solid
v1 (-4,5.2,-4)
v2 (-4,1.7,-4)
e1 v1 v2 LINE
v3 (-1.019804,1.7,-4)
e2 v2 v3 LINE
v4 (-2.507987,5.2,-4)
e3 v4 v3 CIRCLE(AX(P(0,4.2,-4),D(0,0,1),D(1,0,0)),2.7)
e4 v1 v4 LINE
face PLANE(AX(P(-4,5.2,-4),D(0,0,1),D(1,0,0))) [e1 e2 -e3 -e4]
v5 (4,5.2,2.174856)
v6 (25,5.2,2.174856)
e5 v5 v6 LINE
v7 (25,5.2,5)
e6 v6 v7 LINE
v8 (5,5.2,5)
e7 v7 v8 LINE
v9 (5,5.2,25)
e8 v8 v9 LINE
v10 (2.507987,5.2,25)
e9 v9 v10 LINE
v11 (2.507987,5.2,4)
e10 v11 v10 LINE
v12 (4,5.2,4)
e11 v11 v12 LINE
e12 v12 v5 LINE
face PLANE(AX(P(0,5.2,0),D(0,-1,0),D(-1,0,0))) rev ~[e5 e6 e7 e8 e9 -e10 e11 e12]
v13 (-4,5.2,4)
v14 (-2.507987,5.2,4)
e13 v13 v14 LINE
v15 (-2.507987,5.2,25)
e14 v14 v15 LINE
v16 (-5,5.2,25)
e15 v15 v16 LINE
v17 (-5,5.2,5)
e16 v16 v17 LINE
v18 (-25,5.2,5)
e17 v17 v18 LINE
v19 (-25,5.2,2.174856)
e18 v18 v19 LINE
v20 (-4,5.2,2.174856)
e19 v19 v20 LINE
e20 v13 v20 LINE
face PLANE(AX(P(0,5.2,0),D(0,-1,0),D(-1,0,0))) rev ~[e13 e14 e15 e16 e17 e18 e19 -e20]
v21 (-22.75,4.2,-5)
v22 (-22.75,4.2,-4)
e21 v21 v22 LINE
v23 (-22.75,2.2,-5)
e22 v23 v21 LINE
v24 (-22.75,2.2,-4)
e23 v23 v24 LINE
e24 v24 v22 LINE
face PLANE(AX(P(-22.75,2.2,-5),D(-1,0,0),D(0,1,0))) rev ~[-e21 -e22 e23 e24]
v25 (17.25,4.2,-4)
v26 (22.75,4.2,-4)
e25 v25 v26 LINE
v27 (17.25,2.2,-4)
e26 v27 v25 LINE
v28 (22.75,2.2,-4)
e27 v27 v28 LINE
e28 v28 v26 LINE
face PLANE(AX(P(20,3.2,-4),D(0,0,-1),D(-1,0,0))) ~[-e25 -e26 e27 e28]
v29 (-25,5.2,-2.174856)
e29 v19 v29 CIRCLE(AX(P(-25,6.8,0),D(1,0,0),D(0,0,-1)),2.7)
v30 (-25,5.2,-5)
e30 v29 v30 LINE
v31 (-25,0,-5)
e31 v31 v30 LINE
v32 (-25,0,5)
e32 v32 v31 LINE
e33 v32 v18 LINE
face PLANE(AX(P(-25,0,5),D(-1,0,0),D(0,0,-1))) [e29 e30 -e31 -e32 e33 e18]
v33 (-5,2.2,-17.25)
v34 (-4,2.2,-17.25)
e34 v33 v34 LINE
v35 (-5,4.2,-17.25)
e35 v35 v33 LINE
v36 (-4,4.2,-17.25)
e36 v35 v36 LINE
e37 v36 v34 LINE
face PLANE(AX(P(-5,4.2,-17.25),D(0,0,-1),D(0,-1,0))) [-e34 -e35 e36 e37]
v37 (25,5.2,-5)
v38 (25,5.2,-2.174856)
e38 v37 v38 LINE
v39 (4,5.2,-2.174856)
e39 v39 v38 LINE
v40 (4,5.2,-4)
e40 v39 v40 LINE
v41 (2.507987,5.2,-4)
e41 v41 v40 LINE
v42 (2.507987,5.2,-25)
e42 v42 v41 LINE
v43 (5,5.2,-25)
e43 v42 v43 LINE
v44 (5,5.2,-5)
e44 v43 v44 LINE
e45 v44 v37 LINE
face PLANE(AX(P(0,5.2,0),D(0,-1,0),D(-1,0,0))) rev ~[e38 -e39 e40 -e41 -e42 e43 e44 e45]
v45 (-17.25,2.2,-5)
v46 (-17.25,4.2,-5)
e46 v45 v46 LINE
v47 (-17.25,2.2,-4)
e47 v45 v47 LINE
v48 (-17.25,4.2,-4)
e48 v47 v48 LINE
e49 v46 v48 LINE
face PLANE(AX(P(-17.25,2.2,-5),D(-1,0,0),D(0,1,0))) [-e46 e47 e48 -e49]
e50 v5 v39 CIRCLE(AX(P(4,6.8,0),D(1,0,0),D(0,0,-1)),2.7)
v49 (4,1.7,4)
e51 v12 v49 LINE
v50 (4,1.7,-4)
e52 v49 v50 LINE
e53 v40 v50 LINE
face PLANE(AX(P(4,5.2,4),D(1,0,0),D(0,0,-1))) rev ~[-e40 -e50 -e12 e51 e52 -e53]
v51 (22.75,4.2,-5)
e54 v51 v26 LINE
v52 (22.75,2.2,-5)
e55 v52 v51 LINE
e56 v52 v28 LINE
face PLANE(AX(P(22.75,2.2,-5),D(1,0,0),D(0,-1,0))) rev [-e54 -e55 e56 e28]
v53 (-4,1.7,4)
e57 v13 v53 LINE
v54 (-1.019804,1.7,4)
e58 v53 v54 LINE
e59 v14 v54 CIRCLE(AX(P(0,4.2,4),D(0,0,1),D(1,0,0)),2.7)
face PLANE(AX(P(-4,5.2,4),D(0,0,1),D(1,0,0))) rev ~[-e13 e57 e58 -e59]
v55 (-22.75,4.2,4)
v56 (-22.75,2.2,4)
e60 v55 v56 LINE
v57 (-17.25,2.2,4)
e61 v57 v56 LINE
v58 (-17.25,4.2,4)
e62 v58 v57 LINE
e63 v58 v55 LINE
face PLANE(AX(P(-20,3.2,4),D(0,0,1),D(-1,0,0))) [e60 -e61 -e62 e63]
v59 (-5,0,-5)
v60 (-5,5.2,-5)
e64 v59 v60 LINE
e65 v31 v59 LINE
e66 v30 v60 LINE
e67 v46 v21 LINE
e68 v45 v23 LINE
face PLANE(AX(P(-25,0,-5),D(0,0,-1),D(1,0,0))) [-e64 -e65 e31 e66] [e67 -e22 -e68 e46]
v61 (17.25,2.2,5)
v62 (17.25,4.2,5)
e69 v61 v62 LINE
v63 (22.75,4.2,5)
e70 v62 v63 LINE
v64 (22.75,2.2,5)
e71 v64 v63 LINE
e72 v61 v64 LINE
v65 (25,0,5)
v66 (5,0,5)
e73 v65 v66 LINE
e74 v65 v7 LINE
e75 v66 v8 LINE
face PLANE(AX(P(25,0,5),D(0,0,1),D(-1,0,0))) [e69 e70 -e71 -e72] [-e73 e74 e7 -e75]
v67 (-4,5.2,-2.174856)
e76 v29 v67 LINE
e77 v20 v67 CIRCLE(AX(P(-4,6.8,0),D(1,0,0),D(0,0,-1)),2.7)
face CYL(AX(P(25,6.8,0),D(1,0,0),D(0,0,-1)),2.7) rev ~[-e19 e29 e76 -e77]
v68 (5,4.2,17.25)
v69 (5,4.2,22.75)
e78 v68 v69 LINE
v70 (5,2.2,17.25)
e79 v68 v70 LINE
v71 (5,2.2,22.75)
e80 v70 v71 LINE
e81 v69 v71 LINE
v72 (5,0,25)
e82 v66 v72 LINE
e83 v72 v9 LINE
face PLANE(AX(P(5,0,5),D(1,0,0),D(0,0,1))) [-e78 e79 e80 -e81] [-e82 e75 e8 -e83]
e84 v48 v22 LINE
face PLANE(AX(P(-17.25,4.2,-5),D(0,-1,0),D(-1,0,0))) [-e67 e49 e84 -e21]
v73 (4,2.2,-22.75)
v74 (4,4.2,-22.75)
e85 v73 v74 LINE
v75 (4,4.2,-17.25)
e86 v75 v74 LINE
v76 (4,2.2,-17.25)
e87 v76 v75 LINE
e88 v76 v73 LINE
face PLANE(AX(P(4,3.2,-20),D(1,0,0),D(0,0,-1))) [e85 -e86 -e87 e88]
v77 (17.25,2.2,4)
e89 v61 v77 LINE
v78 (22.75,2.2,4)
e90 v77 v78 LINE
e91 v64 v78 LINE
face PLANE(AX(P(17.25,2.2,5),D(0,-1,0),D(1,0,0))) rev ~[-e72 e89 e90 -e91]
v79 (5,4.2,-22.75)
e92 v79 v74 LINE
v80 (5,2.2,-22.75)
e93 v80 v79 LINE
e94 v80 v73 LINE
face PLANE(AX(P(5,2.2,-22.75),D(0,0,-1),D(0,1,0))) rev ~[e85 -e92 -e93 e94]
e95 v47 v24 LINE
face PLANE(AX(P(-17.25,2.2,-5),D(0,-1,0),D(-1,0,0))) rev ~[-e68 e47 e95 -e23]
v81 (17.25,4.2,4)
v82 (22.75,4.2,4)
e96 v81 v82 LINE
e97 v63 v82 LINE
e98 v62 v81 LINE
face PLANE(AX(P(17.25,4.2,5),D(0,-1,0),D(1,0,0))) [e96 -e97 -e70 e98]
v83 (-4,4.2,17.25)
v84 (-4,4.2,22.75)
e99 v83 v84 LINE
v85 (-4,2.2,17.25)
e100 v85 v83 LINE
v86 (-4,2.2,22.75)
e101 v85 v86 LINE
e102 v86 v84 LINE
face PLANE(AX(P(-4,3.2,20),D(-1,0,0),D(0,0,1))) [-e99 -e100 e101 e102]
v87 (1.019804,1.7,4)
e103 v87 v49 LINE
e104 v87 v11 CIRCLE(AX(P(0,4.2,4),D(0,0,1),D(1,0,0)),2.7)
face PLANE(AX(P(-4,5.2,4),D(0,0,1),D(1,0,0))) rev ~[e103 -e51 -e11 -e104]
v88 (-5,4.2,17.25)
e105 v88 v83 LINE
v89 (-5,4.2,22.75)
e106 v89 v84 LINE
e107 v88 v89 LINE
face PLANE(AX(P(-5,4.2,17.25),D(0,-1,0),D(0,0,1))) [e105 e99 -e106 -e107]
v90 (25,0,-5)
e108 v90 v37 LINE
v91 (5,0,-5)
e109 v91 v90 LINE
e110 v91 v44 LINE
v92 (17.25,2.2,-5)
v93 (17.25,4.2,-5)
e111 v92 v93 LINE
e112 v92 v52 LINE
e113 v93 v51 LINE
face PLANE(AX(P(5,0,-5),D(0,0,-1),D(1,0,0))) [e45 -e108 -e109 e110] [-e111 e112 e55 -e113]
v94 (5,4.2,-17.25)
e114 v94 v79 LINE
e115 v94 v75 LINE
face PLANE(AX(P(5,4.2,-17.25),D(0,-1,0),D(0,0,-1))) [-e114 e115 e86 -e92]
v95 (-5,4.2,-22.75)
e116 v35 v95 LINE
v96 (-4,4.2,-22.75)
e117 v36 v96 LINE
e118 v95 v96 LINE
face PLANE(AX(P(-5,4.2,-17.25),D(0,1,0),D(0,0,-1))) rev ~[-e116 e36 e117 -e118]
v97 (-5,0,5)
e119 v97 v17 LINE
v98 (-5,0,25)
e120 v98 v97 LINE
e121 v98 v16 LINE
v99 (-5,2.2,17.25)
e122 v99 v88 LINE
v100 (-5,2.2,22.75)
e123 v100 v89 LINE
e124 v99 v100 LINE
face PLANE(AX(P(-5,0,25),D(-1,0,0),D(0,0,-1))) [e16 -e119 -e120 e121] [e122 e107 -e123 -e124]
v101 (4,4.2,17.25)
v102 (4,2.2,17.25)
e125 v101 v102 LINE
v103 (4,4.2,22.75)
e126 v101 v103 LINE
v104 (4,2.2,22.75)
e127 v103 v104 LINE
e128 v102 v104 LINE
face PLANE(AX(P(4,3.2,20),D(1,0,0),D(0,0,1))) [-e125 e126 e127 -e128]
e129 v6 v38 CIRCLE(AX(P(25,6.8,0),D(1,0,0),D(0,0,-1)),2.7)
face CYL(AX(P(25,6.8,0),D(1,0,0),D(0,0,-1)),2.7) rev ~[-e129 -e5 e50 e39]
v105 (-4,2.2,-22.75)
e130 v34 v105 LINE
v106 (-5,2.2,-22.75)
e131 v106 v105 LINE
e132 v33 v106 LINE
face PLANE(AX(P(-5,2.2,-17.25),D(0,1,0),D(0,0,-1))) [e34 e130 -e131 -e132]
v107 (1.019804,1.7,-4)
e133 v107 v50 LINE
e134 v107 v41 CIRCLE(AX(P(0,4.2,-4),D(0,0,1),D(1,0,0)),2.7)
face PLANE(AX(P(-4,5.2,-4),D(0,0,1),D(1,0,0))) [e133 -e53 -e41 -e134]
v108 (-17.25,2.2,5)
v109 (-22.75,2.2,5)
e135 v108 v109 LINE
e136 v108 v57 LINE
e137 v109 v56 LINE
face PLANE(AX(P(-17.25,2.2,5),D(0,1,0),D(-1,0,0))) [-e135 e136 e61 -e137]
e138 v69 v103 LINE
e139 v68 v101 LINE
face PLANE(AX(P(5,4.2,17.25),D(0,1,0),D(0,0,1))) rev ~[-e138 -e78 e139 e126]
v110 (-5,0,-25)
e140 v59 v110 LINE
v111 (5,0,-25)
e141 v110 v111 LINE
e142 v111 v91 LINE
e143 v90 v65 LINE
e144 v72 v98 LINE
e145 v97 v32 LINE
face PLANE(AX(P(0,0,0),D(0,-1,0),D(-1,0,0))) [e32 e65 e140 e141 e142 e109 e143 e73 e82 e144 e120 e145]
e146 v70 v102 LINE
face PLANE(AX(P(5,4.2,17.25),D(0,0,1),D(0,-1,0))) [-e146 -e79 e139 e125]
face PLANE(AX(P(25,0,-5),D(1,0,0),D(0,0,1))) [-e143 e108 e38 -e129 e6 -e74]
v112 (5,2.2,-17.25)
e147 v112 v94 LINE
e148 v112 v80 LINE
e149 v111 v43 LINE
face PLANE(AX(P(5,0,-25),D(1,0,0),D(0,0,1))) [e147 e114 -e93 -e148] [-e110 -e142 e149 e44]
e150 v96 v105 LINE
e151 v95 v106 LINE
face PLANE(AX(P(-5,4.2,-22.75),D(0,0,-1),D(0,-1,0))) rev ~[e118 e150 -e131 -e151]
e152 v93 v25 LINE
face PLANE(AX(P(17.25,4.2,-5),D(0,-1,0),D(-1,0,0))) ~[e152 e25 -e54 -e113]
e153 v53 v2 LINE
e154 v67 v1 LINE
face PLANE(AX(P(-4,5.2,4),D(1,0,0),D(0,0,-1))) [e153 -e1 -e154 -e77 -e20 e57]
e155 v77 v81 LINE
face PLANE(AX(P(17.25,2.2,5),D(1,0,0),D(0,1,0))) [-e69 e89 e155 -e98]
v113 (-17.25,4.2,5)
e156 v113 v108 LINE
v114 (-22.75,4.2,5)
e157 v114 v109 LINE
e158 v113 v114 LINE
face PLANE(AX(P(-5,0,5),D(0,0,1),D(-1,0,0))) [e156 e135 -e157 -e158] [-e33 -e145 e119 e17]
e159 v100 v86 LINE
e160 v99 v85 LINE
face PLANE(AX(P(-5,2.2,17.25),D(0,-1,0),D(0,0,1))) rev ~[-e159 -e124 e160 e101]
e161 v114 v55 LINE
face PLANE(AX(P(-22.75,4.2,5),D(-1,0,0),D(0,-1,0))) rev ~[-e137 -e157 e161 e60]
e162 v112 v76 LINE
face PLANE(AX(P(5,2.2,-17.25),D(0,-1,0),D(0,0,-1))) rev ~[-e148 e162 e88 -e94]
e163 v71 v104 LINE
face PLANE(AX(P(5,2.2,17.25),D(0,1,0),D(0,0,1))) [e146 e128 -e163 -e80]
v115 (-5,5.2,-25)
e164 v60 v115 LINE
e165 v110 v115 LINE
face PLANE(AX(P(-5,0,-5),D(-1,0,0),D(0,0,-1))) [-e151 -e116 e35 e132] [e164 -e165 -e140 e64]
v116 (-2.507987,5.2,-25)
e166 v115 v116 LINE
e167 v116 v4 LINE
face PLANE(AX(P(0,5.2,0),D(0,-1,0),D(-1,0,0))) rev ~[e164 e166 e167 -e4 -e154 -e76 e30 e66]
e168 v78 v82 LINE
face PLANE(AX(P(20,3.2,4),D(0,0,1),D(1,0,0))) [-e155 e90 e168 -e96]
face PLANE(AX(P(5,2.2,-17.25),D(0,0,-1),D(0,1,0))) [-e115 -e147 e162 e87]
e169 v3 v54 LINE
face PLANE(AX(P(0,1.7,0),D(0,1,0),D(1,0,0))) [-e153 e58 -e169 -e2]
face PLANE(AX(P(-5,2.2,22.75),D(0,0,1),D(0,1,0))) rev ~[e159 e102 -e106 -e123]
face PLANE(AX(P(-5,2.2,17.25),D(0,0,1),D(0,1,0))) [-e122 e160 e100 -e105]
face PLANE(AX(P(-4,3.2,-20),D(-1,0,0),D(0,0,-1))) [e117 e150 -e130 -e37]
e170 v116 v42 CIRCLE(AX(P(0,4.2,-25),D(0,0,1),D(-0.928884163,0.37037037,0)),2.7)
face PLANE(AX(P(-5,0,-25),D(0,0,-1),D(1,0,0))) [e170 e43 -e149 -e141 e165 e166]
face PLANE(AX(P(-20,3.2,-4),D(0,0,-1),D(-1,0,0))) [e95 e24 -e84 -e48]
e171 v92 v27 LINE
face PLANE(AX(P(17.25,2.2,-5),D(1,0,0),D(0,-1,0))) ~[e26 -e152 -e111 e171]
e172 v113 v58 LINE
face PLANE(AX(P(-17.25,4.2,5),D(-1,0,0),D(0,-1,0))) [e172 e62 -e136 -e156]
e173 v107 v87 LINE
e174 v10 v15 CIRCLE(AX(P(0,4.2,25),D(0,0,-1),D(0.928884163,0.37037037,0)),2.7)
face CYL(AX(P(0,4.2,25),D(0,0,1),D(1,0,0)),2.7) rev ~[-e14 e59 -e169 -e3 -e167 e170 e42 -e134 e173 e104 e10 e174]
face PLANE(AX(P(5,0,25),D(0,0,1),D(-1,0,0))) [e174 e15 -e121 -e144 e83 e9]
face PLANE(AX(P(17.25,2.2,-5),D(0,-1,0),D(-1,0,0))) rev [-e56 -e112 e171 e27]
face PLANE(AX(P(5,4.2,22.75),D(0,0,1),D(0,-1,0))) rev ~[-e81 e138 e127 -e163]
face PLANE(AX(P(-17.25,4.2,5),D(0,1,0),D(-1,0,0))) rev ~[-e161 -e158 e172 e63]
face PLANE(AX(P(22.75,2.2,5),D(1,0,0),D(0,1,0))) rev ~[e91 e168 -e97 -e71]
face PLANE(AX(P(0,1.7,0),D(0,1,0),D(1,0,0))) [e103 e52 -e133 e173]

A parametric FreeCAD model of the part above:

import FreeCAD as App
import Part
import Sketcher

V = App.Vector

doc = App.newDocument("Part")
body = doc.addObject("PartDesign::Body", "Body")

# Sketch on XZ plane
sketch1 = body.newObject("Sketcher::SketchObject", "Sketch")
sketch1.AttachmentSupport = (doc.getObject("XZ_Plane"), [""])
sketch1.MapMode = "FlatFace"
sketch1.addGeometry([
    Part.LineSegment(V(25, -5, 0), V(5, -5, 0)),  # 0
    Part.LineSegment(V(5, -5, 0), V(5, -25, 0)),  # 1
    Part.LineSegment(V(5, -25, 0), V(-5, -25, 0)),  # 2
    Part.LineSegment(V(-5, -25, 0), V(-5, -5, 0)),  # 3
    Part.LineSegment(V(-5, -5, 0), V(-25, -5, 0)),  # 4
    Part.LineSegment(V(-25, -5, 0), V(-25, 5, 0)),  # 5
    Part.LineSegment(V(-25, 5, 0), V(-5, 5, 0)),  # 6
    Part.LineSegment(V(-5, 5, 0), V(-5, 25, 0)),  # 7
    Part.LineSegment(V(-5, 25, 0), V(5, 25, 0)),  # 8
    Part.LineSegment(V(5, 25, 0), V(5, 5, 0)),  # 9
    Part.LineSegment(V(5, 5, 0), V(25, 5, 0)),  # 10
    Part.LineSegment(V(25, 5, 0), V(25, -5, 0)),  # 11
], False)
sketch1.addConstraint([
    Sketcher.Constraint("Coincident", 0, 2, 1, 1),
    Sketcher.Constraint("Coincident", 1, 2, 2, 1),
    Sketcher.Constraint("Coincident", 2, 2, 3, 1),
    Sketcher.Constraint("Coincident", 3, 2, 4, 1),
    Sketcher.Constraint("Coincident", 4, 2, 5, 1),
    Sketcher.Constraint("Coincident", 5, 2, 6, 1),
    Sketcher.Constraint("Coincident", 6, 2, 7, 1),
    Sketcher.Constraint("Coincident", 7, 2, 8, 1),
    Sketcher.Constraint("Coincident", 8, 2, 9, 1),
    Sketcher.Constraint("Coincident", 9, 2, 10, 1),
    Sketcher.Constraint("Coincident", 10, 2, 11, 1),
    Sketcher.Constraint("Coincident", 11, 2, 0, 1),
    Sketcher.Constraint("Horizontal", 0),
    Sketcher.Constraint("Vertical", 1),
    Sketcher.Constraint("Horizontal", 2),
    Sketcher.Constraint("Vertical", 3),
    Sketcher.Constraint("Horizontal", 4),
    Sketcher.Constraint("Vertical", 5),
    Sketcher.Constraint("Horizontal", 6),
    Sketcher.Constraint("Vertical", 7),
    Sketcher.Constraint("Horizontal", 8),
    Sketcher.Constraint("Vertical", 9),
    Sketcher.Constraint("Horizontal", 10),
    Sketcher.Constraint("Vertical", 11),
    Sketcher.Constraint("Symmetric", 0, 2, 6, 2, -1, 1),
    Sketcher.Constraint("Symmetric", 2, 2, 8, 2, -1, 1),
    Sketcher.Constraint("Symmetric", 4, 2, 10, 2, -1, 1),
    Sketcher.Constraint("Symmetric", 0, 2, 3, 2, -2),
    Sketcher.Constraint("Equal", 10, 1),
    Sketcher.Constraint("Equal", 8, 5),
    Sketcher.Constraint("DistanceX", 0, 2, 0, 1, 20.0),
    Sketcher.Constraint("DistanceX", 2, 2, 2, 1, 10.0),
])
pad1 = body.newObject("PartDesign::Pad", "Pad")
pad1.Profile = sketch1
pad1.Length = 5.2
pad1.Reversed = True

# Sketch on XY plane
sketch2 = body.newObject("Sketcher::SketchObject", "Sketch001")
sketch2.AttachmentSupport = (doc.getObject("XY_Plane"), [""])
sketch2.MapMode = "FlatFace"
sketch2.AttachmentOffset = App.Placement(V(0, 0, 25), App.Rotation())
sketch2.addGeometry(Part.Circle(V(0, 4.2, 0), V(0, 0, 1), 2.7), False)
sketch2.addConstraint([
    Sketcher.Constraint("PointOnObject", 0, 3, -2),
    Sketcher.Constraint("Diameter", 0, 5.4),
    Sketcher.Constraint("DistanceY", -1, 1, 0, 3, 4.2),
])
pocket1 = body.newObject("PartDesign::Pocket", "Pocket")
pocket1.Profile = sketch2
pocket1.Type = "UpToFirst"

# Sketch on YZ plane
sketch3 = body.newObject("Sketcher::SketchObject", "Sketch002")
sketch3.AttachmentSupport = (doc.getObject("YZ_Plane"), [""])
sketch3.MapMode = "FlatFace"
sketch3.AttachmentOffset = App.Placement(V(0, 0, 25), App.Rotation())
sketch3.addGeometry(Part.Circle(V(6.8, 0, 0), V(0, 0, 1), 2.7), False)
sketch3.addConstraint([
    Sketcher.Constraint("PointOnObject", 0, 3, -1),
    Sketcher.Constraint("Diameter", 0, 5.4),
    Sketcher.Constraint("DistanceX", -1, 1, 0, 3, 6.8),
])
pocket2 = body.newObject("PartDesign::Pocket", "Pocket001")
pocket2.Profile = sketch3
pocket2.Type = "ThroughAll"

# Sketch on XZ plane
sketch4 = body.newObject("Sketcher::SketchObject", "Sketch003")
sketch4.AttachmentSupport = (doc.getObject("XZ_Plane"), [""])
sketch4.MapMode = "FlatFace"
sketch4.AttachmentOffset = App.Placement(V(0, 0, -5.2), App.Rotation())
sketch4.addGeometry([
    Part.LineSegment(V(-4, -4, 0), V(-4, 4, 0)),
    Part.LineSegment(V(-4, 4, 0), V(4, 4, 0)),
    Part.LineSegment(V(4, 4, 0), V(4, -4, 0)),
    Part.LineSegment(V(4, -4, 0), V(-4, -4, 0)),
], False)
sketch4.addConstraint([
    Sketcher.Constraint("Coincident", 0, 2, 1, 1),
    Sketcher.Constraint("Coincident", 1, 2, 2, 1),
    Sketcher.Constraint("Coincident", 2, 2, 3, 1),
    Sketcher.Constraint("Coincident", 3, 2, 0, 1),
    Sketcher.Constraint("Vertical", 0),
    Sketcher.Constraint("Horizontal", 1),
    Sketcher.Constraint("Vertical", 2),
    Sketcher.Constraint("Horizontal", 3),
    Sketcher.Constraint("Symmetric", 0, 2, 2, 2, -1, 1),
    Sketcher.Constraint("Equal", 3, 0),
    Sketcher.Constraint("DistanceX", 1, 1, 1, 2, 8.0),
])
pocket3 = body.newObject("PartDesign::Pocket", "Pocket002")
pocket3.Profile = sketch4
pocket3.Length = 3.5
pocket3.Reversed = True

# Sketch on XY plane
sketch5 = body.newObject("Sketcher::SketchObject", "Sketch004")
sketch5.AttachmentSupport = (doc.getObject("XY_Plane"), [""])
sketch5.MapMode = "FlatFace"
sketch5.AttachmentOffset = App.Placement(V(0, 0, 5), App.Rotation())
sketch5.addGeometry([
    Part.LineSegment(V(17.2, 4.2, 0), V(17.2, 2.2, 0)),
    Part.LineSegment(V(17.2, 2.2, 0), V(22.8, 2.2, 0)),
    Part.LineSegment(V(22.8, 2.2, 0), V(22.8, 4.2, 0)),
    Part.LineSegment(V(22.8, 4.2, 0), V(17.2, 4.2, 0)),
], False)
sketch5.addConstraint([
    Sketcher.Constraint("Coincident", 0, 2, 1, 1),
    Sketcher.Constraint("Coincident", 1, 2, 2, 1),
    Sketcher.Constraint("Coincident", 2, 2, 3, 1),
    Sketcher.Constraint("Coincident", 3, 2, 0, 1),
    Sketcher.Constraint("Vertical", 0),
    Sketcher.Constraint("Horizontal", 1),
    Sketcher.Constraint("Vertical", 2),
    Sketcher.Constraint("Horizontal", 3),
    Sketcher.Constraint("DistanceY", 0, 2, 0, 1, 2.0),
    Sketcher.Constraint("DistanceX", 1, 1, 1, 2, 5.5),
    Sketcher.Constraint("DistanceY", -1, 1, 0, 2, 2.2),
    Sketcher.Constraint("DistanceX", -1, 1, 0, 2, 17.25),
])
pocket4 = body.newObject("PartDesign::Pocket", "Pocket003")
pocket4.Profile = sketch5
pocket4.Length = 1
doc.recompute()

mirrored = body.newObject("PartDesign::Mirrored", "Mirrored")
mirrored.Originals = [pocket4]
mirrored.MirrorPlane = (doc.getObject("XY_Plane"), [""])
body.Tip = mirrored
doc.recompute()

polarpattern = body.newObject("PartDesign::PolarPattern", "PolarPattern")
polarpattern.Originals = [pocket4]
polarpattern.Axis = (doc.getObject("Y_Axis"), [""])
polarpattern.Angle = 360
polarpattern.Occurrences = 4
body.Tip = polarpattern

# Sketch on YZ plane
sketch6 = body.newObject("Sketcher::SketchObject", "Sketch005")
sketch6.AttachmentSupport = (doc.getObject("YZ_Plane"), [""])
sketch6.MapMode = "FlatFace"
sketch6.AttachmentOffset = App.Placement(V(0, 0, -5), App.Rotation())
sketch6.addGeometry([
    Part.LineSegment(V(2.2, -17.2, 0), V(4.2, -17.2, 0)),
    Part.LineSegment(V(4.2, -17.2, 0), V(4.2, -22.8, 0)),
    Part.LineSegment(V(4.2, -22.8, 0), V(2.2, -22.8, 0)),
    Part.LineSegment(V(2.2, -22.8, 0), V(2.2, -17.2, 0)),
], False)
sketch6.addConstraint([
    Sketcher.Constraint("Coincident", 0, 2, 1, 1),
    Sketcher.Constraint("Coincident", 1, 2, 2, 1),
    Sketcher.Constraint("Coincident", 2, 2, 3, 1),
    Sketcher.Constraint("Coincident", 3, 2, 0, 1),
    Sketcher.Constraint("Horizontal", 0),
    Sketcher.Constraint("Vertical", 1),
    Sketcher.Constraint("Horizontal", 2),
    Sketcher.Constraint("Vertical", 3),
    Sketcher.Constraint("DistanceX", 0, 1, 0, 2, 2.0),
    Sketcher.Constraint("DistanceY", 1, 2, 1, 1, 5.5),
    Sketcher.Constraint("DistanceX", -1, 1, 0, 2, 4.2),
    Sketcher.Constraint("DistanceY", 0, 2, -1, 1, 17.25),
])
pocket5 = body.newObject("PartDesign::Pocket", "Pocket004")
pocket5.Profile = sketch6
pocket5.Length = 1
pocket5.Reversed = True

# Sketch on XY plane
sketch7 = body.newObject("Sketcher::SketchObject", "Sketch006")
sketch7.AttachmentSupport = (doc.getObject("XY_Plane"), [""])
sketch7.MapMode = "FlatFace"
sketch7.AttachmentOffset = App.Placement(V(0, 0, 5), App.Rotation())
sketch7.addGeometry([
    Part.LineSegment(V(-17.2, 2.2, 0), V(-17.2, 4.2, 0)),
    Part.LineSegment(V(-17.2, 4.2, 0), V(-22.8, 4.2, 0)),
    Part.LineSegment(V(-22.8, 4.2, 0), V(-22.8, 2.2, 0)),
    Part.LineSegment(V(-22.8, 2.2, 0), V(-17.2, 2.2, 0)),
], False)
sketch7.addConstraint([
    Sketcher.Constraint("Coincident", 0, 2, 1, 1),
    Sketcher.Constraint("Coincident", 1, 2, 2, 1),
    Sketcher.Constraint("Coincident", 2, 2, 3, 1),
    Sketcher.Constraint("Coincident", 3, 2, 0, 1),
    Sketcher.Constraint("Vertical", 0),
    Sketcher.Constraint("Horizontal", 1),
    Sketcher.Constraint("Vertical", 2),
    Sketcher.Constraint("Horizontal", 3),
    Sketcher.Constraint("DistanceY", 0, 1, 0, 2, 2.0),
    Sketcher.Constraint("DistanceX", 1, 2, 1, 1, 5.5),
    Sketcher.Constraint("DistanceY", -1, 1, 0, 2, 4.2),
    Sketcher.Constraint("DistanceX", 0, 2, -1, 1, 17.25),
])
pocket6 = body.newObject("PartDesign::Pocket", "Pocket005")
pocket6.Profile = sketch7
pocket6.Length = 1

# Sketch on YZ plane
sketch8 = body.newObject("Sketcher::SketchObject", "Sketch007")
sketch8.AttachmentSupport = (doc.getObject("YZ_Plane"), [""])
sketch8.MapMode = "FlatFace"
sketch8.AttachmentOffset = App.Placement(V(0, 0, 5), App.Rotation())
sketch8.addGeometry([
    Part.LineSegment(V(2.2, 17.2, 0), V(4.2, 17.2, 0)),
    Part.LineSegment(V(4.2, 17.2, 0), V(4.2, 22.8, 0)),
    Part.LineSegment(V(4.2, 22.8, 0), V(2.2, 22.8, 0)),
    Part.LineSegment(V(2.2, 22.8, 0), V(2.2, 17.2, 0)),
], False)
sketch8.addConstraint([
    Sketcher.Constraint("Coincident", 0, 2, 1, 1),
    Sketcher.Constraint("Coincident", 1, 2, 2, 1),
    Sketcher.Constraint("Coincident", 2, 2, 3, 1),
    Sketcher.Constraint("Coincident", 3, 2, 0, 1),
    Sketcher.Constraint("Horizontal", 0),
    Sketcher.Constraint("Vertical", 1),
    Sketcher.Constraint("Horizontal", 2),
    Sketcher.Constraint("Vertical", 3),
    Sketcher.Constraint("DistanceX", 0, 1, 0, 2, 2.0),
    Sketcher.Constraint("DistanceY", 1, 1, 1, 2, 5.5),
    Sketcher.Constraint("DistanceX", -1, 1, 0, 2, 4.2),
    Sketcher.Constraint("DistanceY", -1, 1, 0, 2, 17.25),
])
pocket7 = body.newObject("PartDesign::Pocket", "Pocket006")
pocket7.Profile = sketch8
pocket7.Length = 1

doc.recompute()
